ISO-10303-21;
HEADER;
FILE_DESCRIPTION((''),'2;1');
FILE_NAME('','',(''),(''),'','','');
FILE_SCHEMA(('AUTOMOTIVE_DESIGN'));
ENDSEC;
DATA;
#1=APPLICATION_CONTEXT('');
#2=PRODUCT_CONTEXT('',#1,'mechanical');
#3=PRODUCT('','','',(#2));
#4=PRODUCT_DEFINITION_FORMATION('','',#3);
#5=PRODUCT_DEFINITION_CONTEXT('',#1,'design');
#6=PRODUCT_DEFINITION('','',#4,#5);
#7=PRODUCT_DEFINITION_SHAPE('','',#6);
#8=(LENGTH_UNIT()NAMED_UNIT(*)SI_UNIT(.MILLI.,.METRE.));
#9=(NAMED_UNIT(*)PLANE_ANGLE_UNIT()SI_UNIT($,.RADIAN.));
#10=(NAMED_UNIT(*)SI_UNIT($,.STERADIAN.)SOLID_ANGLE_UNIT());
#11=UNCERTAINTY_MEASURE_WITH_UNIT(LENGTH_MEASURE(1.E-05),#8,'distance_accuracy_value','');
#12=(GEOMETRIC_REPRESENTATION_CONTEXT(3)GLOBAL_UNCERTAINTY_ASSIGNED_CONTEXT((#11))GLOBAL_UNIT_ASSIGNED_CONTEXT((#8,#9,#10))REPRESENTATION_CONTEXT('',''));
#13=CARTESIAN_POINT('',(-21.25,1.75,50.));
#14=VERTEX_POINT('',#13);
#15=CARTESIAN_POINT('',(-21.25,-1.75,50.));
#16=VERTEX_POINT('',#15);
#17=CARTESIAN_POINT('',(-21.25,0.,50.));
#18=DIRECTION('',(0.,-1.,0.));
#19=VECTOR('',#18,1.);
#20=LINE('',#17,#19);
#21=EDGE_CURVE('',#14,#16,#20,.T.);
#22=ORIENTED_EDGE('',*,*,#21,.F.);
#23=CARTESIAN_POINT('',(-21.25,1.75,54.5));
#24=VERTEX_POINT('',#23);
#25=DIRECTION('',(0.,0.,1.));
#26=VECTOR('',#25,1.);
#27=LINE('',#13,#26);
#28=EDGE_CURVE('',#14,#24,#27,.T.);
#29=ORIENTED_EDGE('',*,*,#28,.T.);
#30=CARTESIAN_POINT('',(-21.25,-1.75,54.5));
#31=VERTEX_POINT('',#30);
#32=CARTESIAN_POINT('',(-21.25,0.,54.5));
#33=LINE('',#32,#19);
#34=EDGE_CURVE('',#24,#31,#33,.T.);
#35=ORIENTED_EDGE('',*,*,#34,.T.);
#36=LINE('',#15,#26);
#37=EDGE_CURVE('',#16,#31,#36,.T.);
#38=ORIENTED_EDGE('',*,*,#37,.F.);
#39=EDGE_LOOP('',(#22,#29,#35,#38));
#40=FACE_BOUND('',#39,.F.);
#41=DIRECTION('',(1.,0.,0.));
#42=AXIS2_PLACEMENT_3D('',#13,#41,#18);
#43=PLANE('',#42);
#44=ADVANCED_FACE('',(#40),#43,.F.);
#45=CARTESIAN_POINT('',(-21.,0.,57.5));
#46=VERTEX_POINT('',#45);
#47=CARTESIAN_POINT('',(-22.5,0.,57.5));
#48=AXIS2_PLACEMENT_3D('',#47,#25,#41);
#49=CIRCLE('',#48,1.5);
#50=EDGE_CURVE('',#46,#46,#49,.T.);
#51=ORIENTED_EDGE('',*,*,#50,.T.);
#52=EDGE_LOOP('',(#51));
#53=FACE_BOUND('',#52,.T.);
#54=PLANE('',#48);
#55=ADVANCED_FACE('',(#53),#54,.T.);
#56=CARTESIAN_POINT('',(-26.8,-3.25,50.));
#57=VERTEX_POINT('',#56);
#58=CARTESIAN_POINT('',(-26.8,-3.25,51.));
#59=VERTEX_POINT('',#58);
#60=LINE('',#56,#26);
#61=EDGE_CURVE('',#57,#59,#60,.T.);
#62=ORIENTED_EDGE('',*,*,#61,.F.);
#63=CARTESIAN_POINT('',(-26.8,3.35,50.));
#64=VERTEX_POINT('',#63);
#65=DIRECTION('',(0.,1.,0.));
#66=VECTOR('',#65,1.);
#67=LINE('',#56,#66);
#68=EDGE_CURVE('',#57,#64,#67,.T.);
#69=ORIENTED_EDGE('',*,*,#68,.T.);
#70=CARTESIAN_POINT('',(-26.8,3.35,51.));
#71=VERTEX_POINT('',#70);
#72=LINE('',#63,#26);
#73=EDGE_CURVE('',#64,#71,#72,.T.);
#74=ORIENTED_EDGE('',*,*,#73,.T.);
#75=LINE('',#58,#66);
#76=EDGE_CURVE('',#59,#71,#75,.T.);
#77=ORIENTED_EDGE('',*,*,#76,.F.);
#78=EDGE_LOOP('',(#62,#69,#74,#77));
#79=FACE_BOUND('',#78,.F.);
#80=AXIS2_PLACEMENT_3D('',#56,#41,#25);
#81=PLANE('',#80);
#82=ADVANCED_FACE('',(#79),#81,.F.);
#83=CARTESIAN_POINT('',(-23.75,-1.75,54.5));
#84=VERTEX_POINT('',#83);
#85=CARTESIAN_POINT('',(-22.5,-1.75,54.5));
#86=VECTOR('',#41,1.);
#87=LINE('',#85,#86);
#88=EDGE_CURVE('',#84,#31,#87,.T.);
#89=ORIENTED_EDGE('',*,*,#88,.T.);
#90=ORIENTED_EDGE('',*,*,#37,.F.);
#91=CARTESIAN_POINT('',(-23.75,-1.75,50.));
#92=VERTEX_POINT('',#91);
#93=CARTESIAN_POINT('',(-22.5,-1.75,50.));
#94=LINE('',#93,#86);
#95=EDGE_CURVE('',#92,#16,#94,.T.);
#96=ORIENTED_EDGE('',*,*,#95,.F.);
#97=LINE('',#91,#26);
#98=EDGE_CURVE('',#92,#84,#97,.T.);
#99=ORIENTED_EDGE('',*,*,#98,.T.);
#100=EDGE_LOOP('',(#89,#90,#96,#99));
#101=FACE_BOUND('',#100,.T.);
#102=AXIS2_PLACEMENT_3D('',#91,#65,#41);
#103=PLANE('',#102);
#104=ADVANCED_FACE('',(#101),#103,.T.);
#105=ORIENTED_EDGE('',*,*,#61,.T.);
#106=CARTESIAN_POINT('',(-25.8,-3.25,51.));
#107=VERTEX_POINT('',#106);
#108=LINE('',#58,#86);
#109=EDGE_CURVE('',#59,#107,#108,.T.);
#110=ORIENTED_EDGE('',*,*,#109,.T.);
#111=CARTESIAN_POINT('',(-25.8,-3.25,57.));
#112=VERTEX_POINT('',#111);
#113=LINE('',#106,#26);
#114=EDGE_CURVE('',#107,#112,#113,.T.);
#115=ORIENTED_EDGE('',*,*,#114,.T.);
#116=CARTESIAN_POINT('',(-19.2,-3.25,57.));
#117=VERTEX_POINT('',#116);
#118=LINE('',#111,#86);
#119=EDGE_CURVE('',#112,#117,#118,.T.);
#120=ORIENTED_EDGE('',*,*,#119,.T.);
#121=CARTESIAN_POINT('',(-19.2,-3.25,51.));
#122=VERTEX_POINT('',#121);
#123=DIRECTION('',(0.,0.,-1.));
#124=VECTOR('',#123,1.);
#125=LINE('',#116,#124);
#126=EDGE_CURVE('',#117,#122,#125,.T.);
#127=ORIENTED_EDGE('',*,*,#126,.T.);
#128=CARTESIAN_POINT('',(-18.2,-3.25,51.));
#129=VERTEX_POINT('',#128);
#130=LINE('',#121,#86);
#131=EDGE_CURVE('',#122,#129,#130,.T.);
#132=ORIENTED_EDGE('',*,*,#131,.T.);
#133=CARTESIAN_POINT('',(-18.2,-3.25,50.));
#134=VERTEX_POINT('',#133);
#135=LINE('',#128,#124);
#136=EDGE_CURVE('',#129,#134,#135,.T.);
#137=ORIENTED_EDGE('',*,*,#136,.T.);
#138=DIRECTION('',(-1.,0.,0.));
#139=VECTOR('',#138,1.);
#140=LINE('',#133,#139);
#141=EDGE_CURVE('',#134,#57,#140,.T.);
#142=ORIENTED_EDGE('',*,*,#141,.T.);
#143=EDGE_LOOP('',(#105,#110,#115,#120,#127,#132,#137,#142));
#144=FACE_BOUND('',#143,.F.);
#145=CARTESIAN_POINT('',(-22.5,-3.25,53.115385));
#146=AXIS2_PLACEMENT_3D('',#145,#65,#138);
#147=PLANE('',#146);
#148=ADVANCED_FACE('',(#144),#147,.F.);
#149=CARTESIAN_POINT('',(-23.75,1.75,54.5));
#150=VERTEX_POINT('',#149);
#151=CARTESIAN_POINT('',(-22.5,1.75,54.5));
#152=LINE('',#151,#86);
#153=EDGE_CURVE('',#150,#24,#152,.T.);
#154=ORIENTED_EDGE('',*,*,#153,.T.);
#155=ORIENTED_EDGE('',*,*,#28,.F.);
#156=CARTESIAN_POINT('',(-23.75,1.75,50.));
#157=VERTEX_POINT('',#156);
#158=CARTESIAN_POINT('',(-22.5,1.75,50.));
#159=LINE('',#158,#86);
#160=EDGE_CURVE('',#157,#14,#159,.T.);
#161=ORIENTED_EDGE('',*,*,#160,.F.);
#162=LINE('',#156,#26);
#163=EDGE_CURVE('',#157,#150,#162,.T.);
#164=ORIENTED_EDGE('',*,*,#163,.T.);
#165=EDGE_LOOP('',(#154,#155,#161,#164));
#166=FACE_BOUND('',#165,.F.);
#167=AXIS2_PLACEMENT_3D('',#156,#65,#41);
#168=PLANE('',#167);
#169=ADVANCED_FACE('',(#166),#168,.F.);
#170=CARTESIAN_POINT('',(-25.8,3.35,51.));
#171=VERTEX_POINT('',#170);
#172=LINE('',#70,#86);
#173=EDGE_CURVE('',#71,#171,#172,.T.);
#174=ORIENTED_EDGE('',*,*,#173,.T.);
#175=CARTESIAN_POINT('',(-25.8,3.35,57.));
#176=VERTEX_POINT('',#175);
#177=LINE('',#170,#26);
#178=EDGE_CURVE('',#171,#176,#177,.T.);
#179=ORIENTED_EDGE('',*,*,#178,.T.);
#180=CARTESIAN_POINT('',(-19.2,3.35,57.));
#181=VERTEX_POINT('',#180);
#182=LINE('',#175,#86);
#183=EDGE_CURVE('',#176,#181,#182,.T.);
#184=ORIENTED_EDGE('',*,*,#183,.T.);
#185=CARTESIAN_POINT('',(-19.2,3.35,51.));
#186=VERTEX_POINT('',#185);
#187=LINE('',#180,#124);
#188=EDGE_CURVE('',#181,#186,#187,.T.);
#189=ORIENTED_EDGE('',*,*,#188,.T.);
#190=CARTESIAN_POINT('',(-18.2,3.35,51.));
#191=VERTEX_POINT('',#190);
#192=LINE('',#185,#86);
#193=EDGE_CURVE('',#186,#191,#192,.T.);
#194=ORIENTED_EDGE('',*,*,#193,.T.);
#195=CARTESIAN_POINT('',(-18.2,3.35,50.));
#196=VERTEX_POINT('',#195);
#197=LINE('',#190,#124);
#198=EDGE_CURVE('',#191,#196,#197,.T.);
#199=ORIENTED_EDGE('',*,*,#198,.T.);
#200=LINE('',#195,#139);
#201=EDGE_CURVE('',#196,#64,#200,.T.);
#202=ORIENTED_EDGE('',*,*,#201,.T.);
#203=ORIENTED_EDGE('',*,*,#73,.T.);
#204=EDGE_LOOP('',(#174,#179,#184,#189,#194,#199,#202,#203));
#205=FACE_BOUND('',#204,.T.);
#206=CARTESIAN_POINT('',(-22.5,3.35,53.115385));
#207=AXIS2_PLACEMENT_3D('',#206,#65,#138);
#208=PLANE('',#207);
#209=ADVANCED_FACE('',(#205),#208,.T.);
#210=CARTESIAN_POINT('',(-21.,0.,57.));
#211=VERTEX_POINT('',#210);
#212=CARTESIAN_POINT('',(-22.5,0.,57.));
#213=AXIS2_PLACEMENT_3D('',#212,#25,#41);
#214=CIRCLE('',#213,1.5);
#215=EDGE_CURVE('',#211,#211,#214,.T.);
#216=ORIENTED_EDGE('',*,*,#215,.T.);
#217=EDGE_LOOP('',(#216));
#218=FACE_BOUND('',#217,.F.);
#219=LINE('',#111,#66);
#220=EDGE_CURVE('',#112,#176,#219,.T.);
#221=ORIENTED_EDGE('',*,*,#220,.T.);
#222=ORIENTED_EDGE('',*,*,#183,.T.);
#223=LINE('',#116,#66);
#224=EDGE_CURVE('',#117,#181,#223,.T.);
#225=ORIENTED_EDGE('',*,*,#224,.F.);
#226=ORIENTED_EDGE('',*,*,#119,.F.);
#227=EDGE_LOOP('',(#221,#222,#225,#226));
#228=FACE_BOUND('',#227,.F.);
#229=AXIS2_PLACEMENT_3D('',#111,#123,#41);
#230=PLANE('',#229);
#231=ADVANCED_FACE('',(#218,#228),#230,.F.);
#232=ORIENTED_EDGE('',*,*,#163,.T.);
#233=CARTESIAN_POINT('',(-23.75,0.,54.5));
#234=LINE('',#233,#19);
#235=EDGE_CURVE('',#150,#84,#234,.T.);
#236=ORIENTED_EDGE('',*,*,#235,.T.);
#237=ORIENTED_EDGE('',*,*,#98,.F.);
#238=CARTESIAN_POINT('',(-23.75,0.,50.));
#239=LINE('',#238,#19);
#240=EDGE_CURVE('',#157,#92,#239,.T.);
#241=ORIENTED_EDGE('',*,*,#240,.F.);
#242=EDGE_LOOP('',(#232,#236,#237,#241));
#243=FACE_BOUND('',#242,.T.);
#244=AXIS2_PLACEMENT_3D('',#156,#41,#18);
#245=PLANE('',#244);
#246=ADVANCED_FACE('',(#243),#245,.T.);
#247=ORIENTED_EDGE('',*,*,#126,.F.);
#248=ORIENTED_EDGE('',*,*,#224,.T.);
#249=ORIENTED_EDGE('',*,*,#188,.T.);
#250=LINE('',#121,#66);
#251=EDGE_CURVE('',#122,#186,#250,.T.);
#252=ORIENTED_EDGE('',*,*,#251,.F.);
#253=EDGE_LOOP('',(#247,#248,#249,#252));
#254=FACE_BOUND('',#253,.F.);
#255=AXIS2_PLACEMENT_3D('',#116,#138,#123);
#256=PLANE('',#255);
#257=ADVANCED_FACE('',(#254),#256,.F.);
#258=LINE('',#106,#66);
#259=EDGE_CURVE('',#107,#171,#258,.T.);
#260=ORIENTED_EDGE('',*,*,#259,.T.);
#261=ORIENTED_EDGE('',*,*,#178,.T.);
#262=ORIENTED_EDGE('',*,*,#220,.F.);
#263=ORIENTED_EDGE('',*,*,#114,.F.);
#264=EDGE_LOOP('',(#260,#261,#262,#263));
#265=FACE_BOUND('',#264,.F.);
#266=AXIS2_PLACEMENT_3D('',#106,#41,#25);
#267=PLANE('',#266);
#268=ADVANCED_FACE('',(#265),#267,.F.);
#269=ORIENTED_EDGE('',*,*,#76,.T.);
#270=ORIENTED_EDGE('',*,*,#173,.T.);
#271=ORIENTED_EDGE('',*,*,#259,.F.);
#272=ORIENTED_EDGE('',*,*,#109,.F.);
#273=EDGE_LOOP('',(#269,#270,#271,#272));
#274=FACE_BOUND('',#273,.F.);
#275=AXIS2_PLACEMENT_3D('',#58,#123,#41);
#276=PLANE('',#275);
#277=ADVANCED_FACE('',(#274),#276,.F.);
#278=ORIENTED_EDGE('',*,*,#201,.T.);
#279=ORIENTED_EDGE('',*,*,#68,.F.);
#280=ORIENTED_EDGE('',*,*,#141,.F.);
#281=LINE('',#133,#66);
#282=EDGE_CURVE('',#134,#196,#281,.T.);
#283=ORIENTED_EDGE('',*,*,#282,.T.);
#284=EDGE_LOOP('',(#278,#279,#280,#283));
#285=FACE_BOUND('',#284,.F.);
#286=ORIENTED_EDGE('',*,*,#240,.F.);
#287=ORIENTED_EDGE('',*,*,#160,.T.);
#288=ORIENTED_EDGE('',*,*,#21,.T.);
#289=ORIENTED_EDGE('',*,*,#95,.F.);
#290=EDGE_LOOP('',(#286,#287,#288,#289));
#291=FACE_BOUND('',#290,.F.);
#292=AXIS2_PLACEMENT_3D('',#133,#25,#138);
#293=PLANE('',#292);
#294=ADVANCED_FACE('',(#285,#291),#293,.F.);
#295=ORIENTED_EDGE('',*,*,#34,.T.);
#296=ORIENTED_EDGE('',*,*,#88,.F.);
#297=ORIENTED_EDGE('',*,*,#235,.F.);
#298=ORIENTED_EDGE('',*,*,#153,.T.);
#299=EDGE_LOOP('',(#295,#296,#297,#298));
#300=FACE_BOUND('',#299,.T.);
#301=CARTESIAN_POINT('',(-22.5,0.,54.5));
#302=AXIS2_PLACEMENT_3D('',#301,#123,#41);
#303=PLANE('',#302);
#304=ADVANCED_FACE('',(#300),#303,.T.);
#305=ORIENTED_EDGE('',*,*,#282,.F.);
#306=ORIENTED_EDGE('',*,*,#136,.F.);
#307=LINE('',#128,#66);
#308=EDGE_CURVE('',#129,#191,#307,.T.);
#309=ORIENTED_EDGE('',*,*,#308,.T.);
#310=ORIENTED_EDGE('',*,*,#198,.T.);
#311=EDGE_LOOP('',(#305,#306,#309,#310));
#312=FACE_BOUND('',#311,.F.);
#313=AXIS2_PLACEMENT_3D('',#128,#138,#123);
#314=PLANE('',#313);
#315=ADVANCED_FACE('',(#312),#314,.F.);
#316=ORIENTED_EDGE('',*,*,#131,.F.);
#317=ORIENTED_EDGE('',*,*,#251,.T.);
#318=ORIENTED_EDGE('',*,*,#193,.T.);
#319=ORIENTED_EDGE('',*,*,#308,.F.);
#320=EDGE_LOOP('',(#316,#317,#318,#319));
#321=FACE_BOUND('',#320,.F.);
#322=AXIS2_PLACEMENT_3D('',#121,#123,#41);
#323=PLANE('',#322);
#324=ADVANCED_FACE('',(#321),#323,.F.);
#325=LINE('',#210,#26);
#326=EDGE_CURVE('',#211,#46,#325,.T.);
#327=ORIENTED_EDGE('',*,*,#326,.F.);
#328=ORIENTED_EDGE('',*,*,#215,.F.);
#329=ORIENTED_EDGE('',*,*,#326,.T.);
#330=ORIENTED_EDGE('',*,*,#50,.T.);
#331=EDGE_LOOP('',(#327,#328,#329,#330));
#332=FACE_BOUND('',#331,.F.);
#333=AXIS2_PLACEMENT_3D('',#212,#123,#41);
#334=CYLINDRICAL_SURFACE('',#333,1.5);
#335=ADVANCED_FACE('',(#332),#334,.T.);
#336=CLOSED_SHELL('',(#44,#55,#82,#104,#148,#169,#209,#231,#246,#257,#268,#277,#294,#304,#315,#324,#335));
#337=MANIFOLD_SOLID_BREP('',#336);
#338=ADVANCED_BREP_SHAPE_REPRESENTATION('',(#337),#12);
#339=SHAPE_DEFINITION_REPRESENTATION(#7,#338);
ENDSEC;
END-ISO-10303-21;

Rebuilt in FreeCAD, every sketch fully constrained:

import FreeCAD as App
import Part
import Sketcher
Q = App.Units.Quantity

doc = App.newDocument("Part")
body = doc.addObject("PartDesign::Body", "Body")

sketch1 = body.newObject("Sketcher::SketchObject", "Sketch")
sketch1.AttachmentSupport = (doc.getObject("XY_Plane"), [""])
sketch1.MapMode = "FlatFace"
sketch1.AttachmentOffset = App.Placement(App.Vector(0, 0, -10), App.Rotation())
sketch1.addGeometry([
    Part.LineSegment(App.Vector(-1.2, -1.8, 0), App.Vector(-1.2, 1.8, 0)),
    Part.LineSegment(App.Vector(-1.2, 1.8, 0), App.Vector(1.2, 1.8, 0)),
    Part.LineSegment(App.Vector(1.2, 1.8, 0), App.Vector(1.2, -1.8, 0)),
    Part.LineSegment(App.Vector(1.2, -1.8, 0), App.Vector(-1.2, -1.8, 0)),
], False)
sketch1.addConstraint([
    Sketcher.Constraint("Coincident", 0, 2, 1, 1),
    Sketcher.Constraint("Coincident", 1, 2, 2, 1),
    Sketcher.Constraint("Coincident", 2, 2, 3, 1),
    Sketcher.Constraint("Coincident", 3, 2, 0, 1),
    Sketcher.Constraint("Vertical", 0),
    Sketcher.Constraint("Horizontal", 1),
    Sketcher.Constraint("Vertical", 2),
    Sketcher.Constraint("Horizontal", 3),
    Sketcher.Constraint("Symmetric", 0, 2, 2, 2, -1, 1),
    Sketcher.Constraint("DistanceX", 1, 1, 1, 2, Q("2.5 mm")),
    Sketcher.Constraint("DistanceY", 0, 1, 0, 2, Q("3.5 mm")),
])
pad1 = body.newObject("PartDesign::Pad", "Pad")
pad1.Profile = sketch1
pad1.Length = 4.5
body2 = doc.addObject("PartDesign::Body", "Body001")
doc.recompute()

body.Placement = App.Placement(App.Vector(0, 0, 10), App.Rotation(App.Vector(0, 0, 1), 0))
boolean = body2.newObject("PartDesign::Boolean", "Boolean")
boolean.Type = "Fuse"
boolean.addObjects([body])
body3 = doc.addObject("PartDesign::Body", "Body002")

sketch2 = body3.newObject("Sketcher::SketchObject", "Sketch001")
sketch2.AttachmentSupport = (doc.getObject("XZ_Plane002"), [""])
sketch2.MapMode = "FlatFace"
sketch2.AttachmentOffset = App.Placement(App.Vector(0, 0, 10), App.Rotation())
sketch2.addGeometry([
    Part.LineSegment(App.Vector(3.3, 7, 0), App.Vector(-3.3, 7, 0)),
    Part.LineSegment(App.Vector(-3.3, 7, 0), App.Vector(-3.3, 1, 0)),
    Part.LineSegment(App.Vector(-3.3, 1, 0), App.Vector(-4.3, 1, 0)),
    Part.LineSegment(App.Vector(-4.3, 1, 0), App.Vector(-4.3, 0, 0)),
    Part.LineSegment(App.Vector(-4.3, 0, 0), App.Vector(4.3, 0, 0)),
    Part.LineSegment(App.Vector(4.3, 0, 0), App.Vector(4.3, 1, 0)),
    Part.LineSegment(App.Vector(4.3, 1, 0), App.Vector(3.3, 1, 0)),
    Part.LineSegment(App.Vector(3.3, 1, 0), App.Vector(3.3, 7, 0)),
], False)
sketch2.addConstraint([
    Sketcher.Constraint("Coincident", 0, 2, 1, 1),
    Sketcher.Constraint("Coincident", 1, 2, 2, 1),
    Sketcher.Constraint("Coincident", 2, 2, 3, 1),
    Sketcher.Constraint("Coincident", 3, 2, 4, 1),
    Sketcher.Constraint("Coincident", 4, 2, 5, 1),
    Sketcher.Constraint("Coincident", 5, 2, 6, 1),
    Sketcher.Constraint("Coincident", 6, 2, 7, 1),
    Sketcher.Constraint("Coincident", 7, 2, 0, 1),
    Sketcher.Constraint("Horizontal", 0),
    Sketcher.Constraint("Vertical", 1),
    Sketcher.Constraint("Horizontal", 2),
    Sketcher.Constraint("Vertical", 3),
    Sketcher.Constraint("Horizontal", 4),
    Sketcher.Constraint("Vertical", 5),
    Sketcher.Constraint("Horizontal", 6),
    Sketcher.Constraint("Vertical", 7),
    Sketcher.Constraint("Symmetric", 3, 2, 4, 2, -1, 1),
    Sketcher.Constraint("Symmetric", 1, 2, 6, 2, -2),
    Sketcher.Constraint("Equal", 6, 3),
    Sketcher.Constraint("DistanceX", 2, 2, 2, 1, Q("1 mm")),
    Sketcher.Constraint("DistanceY", 1, 2, 1, 1, Q("6 mm")),
    Sketcher.Constraint("DistanceX", 0, 2, 0, 1, Q("6.6 mm")),
])
pad2 = body3.newObject("PartDesign::Pad", "Pad001")
pad2.Profile = sketch2
pad2.Length = 6.6
pad2.Reversed = True
body4 = doc.addObject("PartDesign::Body", "Body003")
doc.recompute()

body3.Placement = App.Placement(App.Vector(0, 6.75, 0), App.Rotation(App.Vector(0, 0, 1), 0))
boolean2 = body4.newObject("PartDesign::Boolean", "Boolean001")
boolean2.Type = "Fuse"
boolean2.addObjects([body3])
doc.recompute()

boolean3 = body4.newObject("PartDesign::Boolean", "Boolean002")
boolean3.Type = "Cut"
boolean3.addObjects([body2])
body5 = doc.addObject("PartDesign::Body", "Body004")

sketch3 = body5.newObject("Sketcher::SketchObject", "Sketch002")
sketch3.AttachmentSupport = (doc.getObject("XY_Plane004"), [""])
sketch3.MapMode = "FlatFace"
sketch3.AttachmentOffset = App.Placement(App.Vector(0, 0, 20), App.Rotation())
sketch3.addGeometry(Part.Circle(App.Vector(0, 0, 0), App.Vector(0, 0, 1), 1.5), False)
sketch3.addConstraint([
    Sketcher.Constraint("Coincident", 0, 3, -1, 1),
    Sketcher.Constraint("Diameter", 0, Q("3 mm")),
])
pad3 = body5.newObject("PartDesign::Pad", "Pad002")
pad3.Profile = sketch3
pad3.Length = 0.5
body6 = doc.addObject("PartDesign::Body", "Body005")
doc.recompute()

body5.Placement = App.Placement(App.Vector(0, 0, -13), App.Rotation(App.Vector(0, 0, 1), 0))
boolean4 = body6.newObject("PartDesign::Boolean", "Boolean003")
boolean4.Type = "Fuse"
boolean4.addObjects([body5])
doc.recompute()

boolean5 = body6.newObject("PartDesign::Boolean", "Boolean004")
boolean5.Type = "Fuse"
boolean5.addObjects([body4])
body7 = doc.addObject("PartDesign::Body", "Body006")
doc.recompute()

body6.Placement = App.Placement(App.Vector(-22.5, 0, 50), App.Rotation(App.Vector(0, 0, 1), 0))
boolean6 = body7.newObject("PartDesign::Boolean", "Boolean005")
boolean6.Type = "Fuse"
boolean6.addObjects([body6])

doc.recompute()
